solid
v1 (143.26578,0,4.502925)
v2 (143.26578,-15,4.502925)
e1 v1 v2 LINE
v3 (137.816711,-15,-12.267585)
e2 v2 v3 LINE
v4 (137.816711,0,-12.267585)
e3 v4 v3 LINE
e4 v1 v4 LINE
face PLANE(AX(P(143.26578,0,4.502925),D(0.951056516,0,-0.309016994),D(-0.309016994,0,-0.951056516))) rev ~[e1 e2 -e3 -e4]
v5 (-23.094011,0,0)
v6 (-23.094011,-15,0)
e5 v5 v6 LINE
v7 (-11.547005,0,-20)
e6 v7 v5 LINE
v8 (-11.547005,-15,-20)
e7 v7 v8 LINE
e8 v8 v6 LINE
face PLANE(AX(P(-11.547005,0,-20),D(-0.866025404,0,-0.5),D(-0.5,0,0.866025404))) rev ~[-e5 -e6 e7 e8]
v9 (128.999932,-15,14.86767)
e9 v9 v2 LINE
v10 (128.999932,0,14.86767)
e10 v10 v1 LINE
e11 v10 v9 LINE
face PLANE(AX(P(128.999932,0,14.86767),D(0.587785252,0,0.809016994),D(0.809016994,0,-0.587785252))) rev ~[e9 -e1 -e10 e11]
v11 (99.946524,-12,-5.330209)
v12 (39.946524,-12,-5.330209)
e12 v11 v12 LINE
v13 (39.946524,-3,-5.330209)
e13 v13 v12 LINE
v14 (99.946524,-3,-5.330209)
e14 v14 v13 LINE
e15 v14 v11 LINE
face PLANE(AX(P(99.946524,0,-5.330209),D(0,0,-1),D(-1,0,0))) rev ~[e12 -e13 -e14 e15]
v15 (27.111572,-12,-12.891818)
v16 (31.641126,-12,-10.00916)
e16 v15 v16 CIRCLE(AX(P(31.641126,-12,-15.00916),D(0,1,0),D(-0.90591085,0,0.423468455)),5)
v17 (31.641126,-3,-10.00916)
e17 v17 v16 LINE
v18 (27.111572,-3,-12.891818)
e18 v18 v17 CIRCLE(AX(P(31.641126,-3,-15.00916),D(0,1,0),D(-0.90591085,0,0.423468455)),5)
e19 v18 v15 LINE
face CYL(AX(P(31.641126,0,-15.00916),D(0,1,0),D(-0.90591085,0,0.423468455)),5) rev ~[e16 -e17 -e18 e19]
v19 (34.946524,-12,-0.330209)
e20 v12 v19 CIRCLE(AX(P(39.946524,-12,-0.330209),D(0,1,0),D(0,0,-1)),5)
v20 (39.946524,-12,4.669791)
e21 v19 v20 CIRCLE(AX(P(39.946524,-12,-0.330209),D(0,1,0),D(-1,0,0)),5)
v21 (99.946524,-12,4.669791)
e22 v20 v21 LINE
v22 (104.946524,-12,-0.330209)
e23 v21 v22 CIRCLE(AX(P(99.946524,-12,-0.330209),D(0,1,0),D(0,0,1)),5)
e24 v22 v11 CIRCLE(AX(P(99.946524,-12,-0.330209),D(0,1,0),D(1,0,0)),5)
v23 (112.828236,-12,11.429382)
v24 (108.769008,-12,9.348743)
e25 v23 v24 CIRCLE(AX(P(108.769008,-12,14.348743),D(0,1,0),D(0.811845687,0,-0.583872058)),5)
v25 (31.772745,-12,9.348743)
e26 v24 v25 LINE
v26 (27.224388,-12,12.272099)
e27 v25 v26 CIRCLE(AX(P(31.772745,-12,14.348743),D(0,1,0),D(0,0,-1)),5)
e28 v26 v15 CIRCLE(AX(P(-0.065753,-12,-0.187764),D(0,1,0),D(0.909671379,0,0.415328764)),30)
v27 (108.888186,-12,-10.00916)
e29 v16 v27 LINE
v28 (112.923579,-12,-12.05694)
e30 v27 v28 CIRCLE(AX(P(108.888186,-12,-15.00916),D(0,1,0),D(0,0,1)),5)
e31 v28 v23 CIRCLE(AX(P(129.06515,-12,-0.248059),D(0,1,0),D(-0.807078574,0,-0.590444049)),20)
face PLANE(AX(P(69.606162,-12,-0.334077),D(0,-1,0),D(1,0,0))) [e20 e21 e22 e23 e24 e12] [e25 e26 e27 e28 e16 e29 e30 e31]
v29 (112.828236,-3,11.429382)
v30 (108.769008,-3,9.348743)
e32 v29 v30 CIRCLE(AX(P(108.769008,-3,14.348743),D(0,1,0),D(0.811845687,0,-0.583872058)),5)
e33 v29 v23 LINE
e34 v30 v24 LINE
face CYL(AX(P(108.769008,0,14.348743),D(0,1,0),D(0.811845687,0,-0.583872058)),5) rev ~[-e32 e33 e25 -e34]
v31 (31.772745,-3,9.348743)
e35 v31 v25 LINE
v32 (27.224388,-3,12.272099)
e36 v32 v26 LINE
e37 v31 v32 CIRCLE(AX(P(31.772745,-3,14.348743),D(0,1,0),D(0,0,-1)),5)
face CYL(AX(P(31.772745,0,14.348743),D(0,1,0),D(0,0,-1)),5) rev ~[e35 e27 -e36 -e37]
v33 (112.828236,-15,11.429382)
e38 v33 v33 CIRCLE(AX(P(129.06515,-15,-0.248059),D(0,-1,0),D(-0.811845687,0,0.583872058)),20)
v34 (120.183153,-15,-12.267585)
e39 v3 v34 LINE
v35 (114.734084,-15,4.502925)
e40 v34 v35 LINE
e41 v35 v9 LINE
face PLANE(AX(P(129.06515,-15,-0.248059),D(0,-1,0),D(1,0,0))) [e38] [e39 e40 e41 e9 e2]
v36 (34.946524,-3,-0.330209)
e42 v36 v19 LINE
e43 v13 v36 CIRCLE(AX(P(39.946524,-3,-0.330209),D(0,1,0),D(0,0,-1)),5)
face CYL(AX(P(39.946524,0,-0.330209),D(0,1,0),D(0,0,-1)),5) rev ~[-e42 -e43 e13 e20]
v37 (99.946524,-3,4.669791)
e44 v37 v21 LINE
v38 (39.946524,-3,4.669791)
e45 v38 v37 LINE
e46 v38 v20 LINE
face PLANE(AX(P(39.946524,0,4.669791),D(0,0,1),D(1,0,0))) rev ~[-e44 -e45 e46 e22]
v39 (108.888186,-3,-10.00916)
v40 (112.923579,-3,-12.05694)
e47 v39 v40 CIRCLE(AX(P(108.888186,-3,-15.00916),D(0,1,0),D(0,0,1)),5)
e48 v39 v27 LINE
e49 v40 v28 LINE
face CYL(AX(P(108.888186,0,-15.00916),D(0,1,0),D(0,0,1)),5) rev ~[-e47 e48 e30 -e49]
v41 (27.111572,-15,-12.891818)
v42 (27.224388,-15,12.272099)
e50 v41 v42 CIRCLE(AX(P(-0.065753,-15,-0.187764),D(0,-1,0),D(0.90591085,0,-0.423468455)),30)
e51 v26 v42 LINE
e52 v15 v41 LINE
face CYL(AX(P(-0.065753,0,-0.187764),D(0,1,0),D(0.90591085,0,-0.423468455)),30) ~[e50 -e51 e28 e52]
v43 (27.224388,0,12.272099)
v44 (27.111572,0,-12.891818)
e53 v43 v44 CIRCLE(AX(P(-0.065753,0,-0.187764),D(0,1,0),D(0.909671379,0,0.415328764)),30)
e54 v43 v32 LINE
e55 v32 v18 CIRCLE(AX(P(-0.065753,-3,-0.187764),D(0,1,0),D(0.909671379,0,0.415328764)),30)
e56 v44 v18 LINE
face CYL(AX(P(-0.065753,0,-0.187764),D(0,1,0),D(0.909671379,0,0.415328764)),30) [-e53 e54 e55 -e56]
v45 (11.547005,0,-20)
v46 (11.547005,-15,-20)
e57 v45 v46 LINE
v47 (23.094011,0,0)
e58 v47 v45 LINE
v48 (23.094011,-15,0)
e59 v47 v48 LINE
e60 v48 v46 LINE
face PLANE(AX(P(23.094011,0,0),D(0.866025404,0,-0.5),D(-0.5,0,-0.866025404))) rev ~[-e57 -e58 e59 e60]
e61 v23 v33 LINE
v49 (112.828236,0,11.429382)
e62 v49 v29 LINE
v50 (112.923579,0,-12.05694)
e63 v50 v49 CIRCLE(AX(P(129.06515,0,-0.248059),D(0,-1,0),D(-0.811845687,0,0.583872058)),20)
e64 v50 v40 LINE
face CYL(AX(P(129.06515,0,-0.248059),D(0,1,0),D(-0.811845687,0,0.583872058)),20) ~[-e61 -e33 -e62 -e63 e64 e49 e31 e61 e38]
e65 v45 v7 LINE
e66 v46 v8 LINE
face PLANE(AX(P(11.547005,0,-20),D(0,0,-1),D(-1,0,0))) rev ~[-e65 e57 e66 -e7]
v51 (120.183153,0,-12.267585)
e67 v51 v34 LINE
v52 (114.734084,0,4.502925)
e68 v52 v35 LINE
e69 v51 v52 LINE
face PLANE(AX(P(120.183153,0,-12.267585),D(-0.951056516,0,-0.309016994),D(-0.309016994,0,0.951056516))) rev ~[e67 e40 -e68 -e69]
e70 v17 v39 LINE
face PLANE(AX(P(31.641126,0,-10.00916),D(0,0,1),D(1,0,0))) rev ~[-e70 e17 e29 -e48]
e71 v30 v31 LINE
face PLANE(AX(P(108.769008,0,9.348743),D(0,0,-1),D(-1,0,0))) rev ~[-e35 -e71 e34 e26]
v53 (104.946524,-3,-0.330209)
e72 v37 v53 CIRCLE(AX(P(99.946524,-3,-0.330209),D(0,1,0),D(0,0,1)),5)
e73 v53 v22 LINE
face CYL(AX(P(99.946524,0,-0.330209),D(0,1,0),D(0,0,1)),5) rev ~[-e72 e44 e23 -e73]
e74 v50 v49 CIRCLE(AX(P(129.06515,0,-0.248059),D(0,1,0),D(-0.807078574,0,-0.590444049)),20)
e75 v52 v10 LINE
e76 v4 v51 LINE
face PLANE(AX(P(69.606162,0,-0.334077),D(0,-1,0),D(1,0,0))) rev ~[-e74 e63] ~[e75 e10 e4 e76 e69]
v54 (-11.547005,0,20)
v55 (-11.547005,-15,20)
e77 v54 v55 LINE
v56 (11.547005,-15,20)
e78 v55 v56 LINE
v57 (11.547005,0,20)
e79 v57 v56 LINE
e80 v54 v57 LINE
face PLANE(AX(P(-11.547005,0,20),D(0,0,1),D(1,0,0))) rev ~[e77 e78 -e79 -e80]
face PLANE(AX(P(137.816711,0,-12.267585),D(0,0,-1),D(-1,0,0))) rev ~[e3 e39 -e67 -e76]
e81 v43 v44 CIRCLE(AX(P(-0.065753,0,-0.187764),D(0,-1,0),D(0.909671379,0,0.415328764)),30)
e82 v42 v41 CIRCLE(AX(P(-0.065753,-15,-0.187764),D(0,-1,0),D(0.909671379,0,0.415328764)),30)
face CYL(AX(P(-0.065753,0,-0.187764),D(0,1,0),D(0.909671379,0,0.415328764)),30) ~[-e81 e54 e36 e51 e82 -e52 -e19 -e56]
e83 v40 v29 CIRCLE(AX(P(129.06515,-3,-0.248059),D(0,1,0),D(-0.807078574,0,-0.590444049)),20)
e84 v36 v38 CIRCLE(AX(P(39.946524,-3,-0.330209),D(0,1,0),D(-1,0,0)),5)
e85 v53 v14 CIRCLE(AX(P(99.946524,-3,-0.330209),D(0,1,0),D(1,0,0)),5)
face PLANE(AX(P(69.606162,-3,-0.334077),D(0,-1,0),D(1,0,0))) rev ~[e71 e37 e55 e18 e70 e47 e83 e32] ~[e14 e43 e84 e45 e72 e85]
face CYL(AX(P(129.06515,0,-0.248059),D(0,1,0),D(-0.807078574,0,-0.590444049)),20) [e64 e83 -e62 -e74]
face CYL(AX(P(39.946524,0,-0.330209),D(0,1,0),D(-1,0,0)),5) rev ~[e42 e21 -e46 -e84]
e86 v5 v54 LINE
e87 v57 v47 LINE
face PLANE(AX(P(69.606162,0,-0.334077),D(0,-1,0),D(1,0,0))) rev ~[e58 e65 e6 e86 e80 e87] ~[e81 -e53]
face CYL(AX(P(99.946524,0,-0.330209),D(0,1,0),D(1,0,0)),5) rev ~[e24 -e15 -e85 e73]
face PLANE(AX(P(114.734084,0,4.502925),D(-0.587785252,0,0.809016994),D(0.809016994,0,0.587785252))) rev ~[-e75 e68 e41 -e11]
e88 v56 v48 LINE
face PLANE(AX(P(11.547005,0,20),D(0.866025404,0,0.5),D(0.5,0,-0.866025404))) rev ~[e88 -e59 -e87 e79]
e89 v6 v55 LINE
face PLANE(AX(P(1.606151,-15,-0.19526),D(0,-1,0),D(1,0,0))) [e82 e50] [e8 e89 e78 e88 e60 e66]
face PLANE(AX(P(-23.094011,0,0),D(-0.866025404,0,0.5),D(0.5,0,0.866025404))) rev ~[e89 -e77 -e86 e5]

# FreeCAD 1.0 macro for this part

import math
import FreeCAD as App
import Part
import Sketcher

V = App.Vector
Q = App.Units.Quantity

doc = App.newDocument("Part")
body = doc.addObject("PartDesign::Body", "Body")

# Sketch on XZ plane
sketch1 = body.newObject("Sketcher::SketchObject", "Sketch")
sketch1.AttachmentSupport = (doc.getObject("XZ_Plane"), [""])
sketch1.MapMode = "FlatFace"
sketch1.addGeometry([
    Part.ArcOfCircle(Part.Circle(V(0, 0, 0), V(0, 0, 1), 30), math.radians(-25), math.radians(25)),  # 0
    Part.ArcOfCircle(Part.Circle(V(0, 0, 0), V(0, 0, 1), 30), math.radians(25), math.radians(335)),  # 1
    Part.LineSegment(V(12, -20, 0), V(-12, -20, 0)),  # 2
    Part.LineSegment(V(-12, -20, 0), V(-23, 0, 0)),  # 3
    Part.LineSegment(V(-23, 0, 0), V(-12, 20, 0)),  # 4
    Part.LineSegment(V(-12, 20, 0), V(12, 20, 0)),  # 5
    Part.LineSegment(V(12, 20, 0), V(23, 0, 0)),  # 6
    Part.LineSegment(V(23, 0, 0), V(12, -20, 0)),  # 7
], False)
sketch1.addConstraint([
    Sketcher.Constraint("Tangent", 0, 1, 1, 2),
    Sketcher.Constraint("Coincident", 1, 1, 0, 2),
    Sketcher.Constraint("Coincident", 2, 2, 3, 1),
    Sketcher.Constraint("Coincident", 3, 2, 4, 1),
    Sketcher.Constraint("Coincident", 4, 2, 5, 1),
    Sketcher.Constraint("Coincident", 5, 2, 6, 1),
    Sketcher.Constraint("Coincident", 6, 2, 7, 1),
    Sketcher.Constraint("Coincident", 7, 2, 2, 1),
    Sketcher.Constraint("Horizontal", 2),
    Sketcher.Constraint("Horizontal", 5),
    Sketcher.Constraint("Symmetric", 2, 2, 5, 2, -1, 1),
    Sketcher.Constraint("Symmetric", 3, 2, 6, 2, -1, 1),
    Sketcher.Constraint("PointOnObject", 3, 2, -1),
    Sketcher.Constraint("Parallel", 4, 7),
    Sketcher.Constraint("Vertical", 2, 2, 4, 2),
    Sketcher.Constraint("Radius", 0, 30.0),
    Sketcher.Constraint("Angle", 3, Q("120 deg")),
    Sketcher.Constraint("DistanceY", 2, 2, -1, 1, 20.0),
    Sketcher.Constraint("DistanceX", 2, 2, 2, 1, 23.094011),
    Sketcher.Constraint("DistanceY", -1, 1, 1, 1, 12.272099),
    Sketcher.Constraint("DistanceX", 3, 2, 1, 1, 50.318399),
    Sketcher.Constraint("DistanceX", 0, 3, 1, 1, 27.290141),
    Sketcher.Constraint("DistanceX", 6, 2, 0, 1, 4.017561),
])
pad1 = body.newObject("PartDesign::Pad", "Pad")
pad1.Profile = sketch1
pad1.Length = 15
body2 = doc.addObject("PartDesign::Body", "Body001")

# Sketch on XZ plane
sketch2 = body2.newObject("Sketcher::SketchObject", "Sketch001")
sketch2.AttachmentSupport = (doc.getObject("XZ_Plane001"), [""])
sketch2.MapMode = "FlatFace"
sketch2.addGeometry([
    Part.Circle(V(129, 0, 0), V(0, 0, 1), 20),  # 0
    Part.LineSegment(V(120, -12, 0), V(115, 5, 0)),  # 1
    Part.LineSegment(V(115, 5, 0), V(129, 15, 0)),  # 2
    Part.LineSegment(V(129, 15, 0), V(143, 5, 0)),  # 3
    Part.LineSegment(V(143, 5, 0), V(138, -12, 0)),  # 4
    Part.LineSegment(V(138, -12, 0), V(120, -12, 0)),  # 5
], False)
sketch2.addConstraint([
    Sketcher.Constraint("Coincident", 1, 2, 2, 1),
    Sketcher.Constraint("Coincident", 2, 2, 3, 1),
    Sketcher.Constraint("Coincident", 3, 2, 4, 1),
    Sketcher.Constraint("Coincident", 4, 2, 5, 1),
    Sketcher.Constraint("Coincident", 5, 2, 1, 1),
    Sketcher.Constraint("Horizontal", 5),
    Sketcher.Constraint("Horizontal", 1, 2, 3, 2),
    Sketcher.Constraint("Equal", 1, 2),
    Sketcher.Constraint("Equal", 2, 3),
    Sketcher.Constraint("Equal", 3, 4),
    Sketcher.Constraint("Diameter", 0, 40.0),
    Sketcher.Constraint("Angle", 1, Q("108 deg")),
    Sketcher.Constraint("Angle", 2, Q("36 deg")),
    Sketcher.Constraint("DistanceX", 5, 2, 5, 1, 17.633558),
    Sketcher.Constraint("DistanceX", -1, 1, 0, 3, 129.06515),
    Sketcher.Constraint("DistanceY", 0, 3, -1, 1, 0.248059),
    Sketcher.Constraint("DistanceY", -1, 1, 2, 2, 14.86767),
    Sketcher.Constraint("DistanceX", -1, 1, 3, 2, 143.26578),
])
pad2 = body2.newObject("PartDesign::Pad", "Pad001")
pad2.Profile = sketch2
pad2.Length = 15
body.AllowCompound = True
doc.recompute()

boolean = body.newObject("PartDesign::Boolean", "Boolean")
boolean.Type = "Fuse"
boolean.addObjects([body2])

# Sketch on XZ plane
sketch3 = body.newObject("Sketcher::SketchObject", "Sketch002")
sketch3.AttachmentSupport = (doc.getObject("XZ_Plane"), [""])
sketch3.MapMode = "FlatFace"
sketch3.addGeometry([
    Part.LineSegment(V(108.8, 9.3, 0), V(31.8, 9.3, 0)),  # 0
    Part.ArcOfCircle(Part.Circle(V(31.8, 14.3, 0), V(0, 0, 1), 5), math.radians(-155), math.radians(-90)),  # 1
    Part.ArcOfCircle(Part.Circle(V(-0.1, -0.2, 0), V(0, 0, 1), 30), math.radians(-25), math.radians(25)),  # 2
    Part.ArcOfCircle(Part.Circle(V(31.6, -15, 0), V(0, 0, 1), 5), math.radians(90), math.radians(155)),  # 3
    Part.LineSegment(V(31.6, -10, 0), V(108.9, -10, 0)),  # 4
    Part.ArcOfCircle(Part.Circle(V(108.9, -15, 0), V(0, 0, 1), 5), math.radians(36), math.radians(90)),  # 5
    Part.ArcOfCircle(Part.Circle(V(129.1, -0.2, 0), V(0, 0, 1), 20), math.radians(144), math.radians(216)),  # 6
    Part.ArcOfCircle(Part.Circle(V(108.8, 14.3, 0), V(0, 0, 1), 5), math.radians(-90), math.radians(-36)),  # 7
    Part.ArcOfCircle(Part.Circle(V(39.9, -0.3, 0), V(0, 0, 1), 5), math.radians(-180), math.radians(-90)),  # 8
    Part.ArcOfCircle(Part.Circle(V(39.9, -0.3, 0), V(0, 0, 1), 5), math.radians(90), math.radians(180)),  # 9
    Part.LineSegment(V(39.9, 4.7, 0), V(99.9, 4.7, 0)),  # 10
    Part.ArcOfCircle(Part.Circle(V(99.9, -0.3, 0), V(0, 0, 1), 5), math.radians(0), math.radians(90)),  # 11
    Part.ArcOfCircle(Part.Circle(V(99.9, -0.3, 0), V(0, 0, 1), 5), math.radians(-90), math.radians(0)),  # 12
    Part.LineSegment(V(99.9, -5.3, 0), V(39.9, -5.3, 0)),  # 13
], False)
sketch3.addConstraint([
    Sketcher.Constraint("Tangent", 0, 2, 1, 2),
    Sketcher.Constraint("Tangent", 1, 1, 2, 2),
    Sketcher.Constraint("Tangent", 2, 1, 3, 2),
    Sketcher.Constraint("Tangent", 3, 1, 4, 1),
    Sketcher.Constraint("Tangent", 4, 2, 5, 2),
    Sketcher.Constraint("Tangent", 5, 1, 6, 2),
    Sketcher.Constraint("Tangent", 6, 1, 7, 2),
    Sketcher.Constraint("Tangent", 7, 1, 0, 1),
    Sketcher.Constraint("Tangent", 8, 1, 9, 2),
    Sketcher.Constraint("Tangent", 9, 1, 10, 1),
    Sketcher.Constraint("Tangent", 10, 2, 11, 2),
    Sketcher.Constraint("Tangent", 11, 1, 12, 2),
    Sketcher.Constraint("Tangent", 12, 1, 13, 1),
    Sketcher.Constraint("Tangent", 13, 2, 8, 2),
    Sketcher.Constraint("Horizontal", 0),
    Sketcher.Constraint("Horizontal", 4),
    Sketcher.Constraint("Horizontal", 10),
    Sketcher.Constraint("Horizontal", 13),
    Sketcher.Constraint("Equal", 1, 3),
    Sketcher.Constraint("Equal", 3, 5),
    Sketcher.Constraint("Equal", 5, 7),
    Sketcher.Constraint("Equal", 7, 8),
    Sketcher.Constraint("Equal", 8, 9),
    Sketcher.Constraint("Equal", 9, 11),
    Sketcher.Constraint("Horizontal", 12, 3, 8, 1),
    Sketcher.Constraint("Horizontal", 8, 1, 11, 1),
    Sketcher.Constraint("Radius", 1, 5.0),
    Sketcher.Constraint("Radius", 2, 30.0),
    Sketcher.Constraint("Radius", 6, 20.0),
    Sketcher.Constraint("DistanceX", 10, 1, 10, 2, 60.0),
    Sketcher.Constraint("DistanceX", 4, 1, 4, 2, 77.247059),
    Sketcher.Constraint("DistanceY", -1, 1, 1, 1, 12.272099),
    Sketcher.Constraint("DistanceX", 2, 3, 1, 3, 31.838498),
    Sketcher.Constraint("DistanceY", 5, 3, 6, 3, 14.761101),
    Sketcher.Constraint("DistanceY", 6, 3, 1, 3, 14.596801),
    Sketcher.Constraint("DistanceX", -1, 1, 6, 3, 129.06515),
    Sketcher.Constraint("DistanceY", 8, 3, -1, 1, 0.330209),
    Sketcher.Constraint("DistanceX", 1, 3, 8, 3, 8.173779),
])
pad3 = body.newObject("PartDesign::Pad", "Pad002")
pad3.Profile = sketch3
pad3.Length = 12

# Sketch on XZ plane
sketch4 = body.newObject("Sketcher::SketchObject", "Sketch003")
sketch4.AttachmentSupport = (doc.getObject("XZ_Plane"), [""])
sketch4.MapMode = "FlatFace"
sketch4.addGeometry([
    Part.LineSegment(V(108.8, 9.3, 0), V(31.8, 9.3, 0)),  # 0
    Part.ArcOfCircle(Part.Circle(V(31.8, 14.3, 0), V(0, 0, 1), 5), math.radians(-155), math.radians(-90)),  # 1
    Part.ArcOfCircle(Part.Circle(V(-0.1, -0.2, 0), V(0, 0, 1), 30), math.radians(-25), math.radians(25)),  # 2
    Part.ArcOfCircle(Part.Circle(V(31.6, -15, 0), V(0, 0, 1), 5), math.radians(90), math.radians(155)),  # 3
    Part.LineSegment(V(31.6, -10, 0), V(108.9, -10, 0)),  # 4
    Part.ArcOfCircle(Part.Circle(V(108.9, -15, 0), V(0, 0, 1), 5), math.radians(36), math.radians(90)),  # 5
    Part.ArcOfCircle(Part.Circle(V(129.1, -0.2, 0), V(0, 0, 1), 20), math.radians(144), math.radians(216)),  # 6
    Part.ArcOfCircle(Part.Circle(V(108.8, 14.3, 0), V(0, 0, 1), 5), math.radians(-90), math.radians(-36)),  # 7
    Part.ArcOfCircle(Part.Circle(V(39.9, -0.3, 0), V(0, 0, 1), 5), math.radians(-180), math.radians(-90)),  # 8
    Part.ArcOfCircle(Part.Circle(V(39.9, -0.3, 0), V(0, 0, 1), 5), math.radians(90), math.radians(180)),  # 9
    Part.LineSegment(V(39.9, 4.7, 0), V(99.9, 4.7, 0)),  # 10
    Part.ArcOfCircle(Part.Circle(V(99.9, -0.3, 0), V(0, 0, 1), 5), math.radians(0), math.radians(90)),  # 11
    Part.ArcOfCircle(Part.Circle(V(99.9, -0.3, 0), V(0, 0, 1), 5), math.radians(-90), math.radians(0)),  # 12
    Part.LineSegment(V(99.9, -5.3, 0), V(39.9, -5.3, 0)),  # 13
], False)
sketch4.addConstraint([
    Sketcher.Constraint("Tangent", 0, 2, 1, 2),
    Sketcher.Constraint("Tangent", 1, 1, 2, 2),
    Sketcher.Constraint("Tangent", 2, 1, 3, 2),
    Sketcher.Constraint("Tangent", 3, 1, 4, 1),
    Sketcher.Constraint("Tangent", 4, 2, 5, 2),
    Sketcher.Constraint("Tangent", 5, 1, 6, 2),
    Sketcher.Constraint("Tangent", 6, 1, 7, 2),
    Sketcher.Constraint("Tangent", 7, 1, 0, 1),
    Sketcher.Constraint("Tangent", 8, 1, 9, 2),
    Sketcher.Constraint("Tangent", 9, 1, 10, 1),
    Sketcher.Constraint("Tangent", 10, 2, 11, 2),
    Sketcher.Constraint("Tangent", 11, 1, 12, 2),
    Sketcher.Constraint("Tangent", 12, 1, 13, 1),
    Sketcher.Constraint("Tangent", 13, 2, 8, 2),
    Sketcher.Constraint("Horizontal", 0),
    Sketcher.Constraint("Horizontal", 4),
    Sketcher.Constraint("Horizontal", 10),
    Sketcher.Constraint("Horizontal", 13),
    Sketcher.Constraint("Equal", 1, 3),
    Sketcher.Constraint("Equal", 3, 5),
    Sketcher.Constraint("Equal", 5, 7),
    Sketcher.Constraint("Equal", 7, 8),
    Sketcher.Constraint("Equal", 8, 9),
    Sketcher.Constraint("Equal", 9, 11),
    Sketcher.Constraint("Horizontal", 12, 3, 8, 1),
    Sketcher.Constraint("Horizontal", 8, 1, 11, 1),
    Sketcher.Constraint("Radius", 1, 5.0),
    Sketcher.Constraint("Radius", 2, 30.0),
    Sketcher.Constraint("Radius", 6, 20.0),
    Sketcher.Constraint("DistanceX", 10, 1, 10, 2, 60.0),
    Sketcher.Constraint("DistanceX", 4, 1, 4, 2, 77.247059),
    Sketcher.Constraint("DistanceY", -1, 1, 1, 1, 12.272099),
    Sketcher.Constraint("DistanceX", 2, 3, 1, 3, 31.838498),
    Sketcher.Constraint("DistanceY", 5, 3, 6, 3, 14.761101),
    Sketcher.Constraint("DistanceY", 6, 3, 1, 3, 14.596801),
    Sketcher.Constraint("DistanceX", -1, 1, 6, 3, 129.06515),
    Sketcher.Constraint("DistanceY", 8, 3, -1, 1, 0.330209),
    Sketcher.Constraint("DistanceX", 1, 3, 8, 3, 8.173779),
])
pocket1 = body.newObject("PartDesign::Pocket", "Pocket")
pocket1.Profile = sketch4
pocket1.Length = 3
pocket1.Reversed = True

doc.recompute()
